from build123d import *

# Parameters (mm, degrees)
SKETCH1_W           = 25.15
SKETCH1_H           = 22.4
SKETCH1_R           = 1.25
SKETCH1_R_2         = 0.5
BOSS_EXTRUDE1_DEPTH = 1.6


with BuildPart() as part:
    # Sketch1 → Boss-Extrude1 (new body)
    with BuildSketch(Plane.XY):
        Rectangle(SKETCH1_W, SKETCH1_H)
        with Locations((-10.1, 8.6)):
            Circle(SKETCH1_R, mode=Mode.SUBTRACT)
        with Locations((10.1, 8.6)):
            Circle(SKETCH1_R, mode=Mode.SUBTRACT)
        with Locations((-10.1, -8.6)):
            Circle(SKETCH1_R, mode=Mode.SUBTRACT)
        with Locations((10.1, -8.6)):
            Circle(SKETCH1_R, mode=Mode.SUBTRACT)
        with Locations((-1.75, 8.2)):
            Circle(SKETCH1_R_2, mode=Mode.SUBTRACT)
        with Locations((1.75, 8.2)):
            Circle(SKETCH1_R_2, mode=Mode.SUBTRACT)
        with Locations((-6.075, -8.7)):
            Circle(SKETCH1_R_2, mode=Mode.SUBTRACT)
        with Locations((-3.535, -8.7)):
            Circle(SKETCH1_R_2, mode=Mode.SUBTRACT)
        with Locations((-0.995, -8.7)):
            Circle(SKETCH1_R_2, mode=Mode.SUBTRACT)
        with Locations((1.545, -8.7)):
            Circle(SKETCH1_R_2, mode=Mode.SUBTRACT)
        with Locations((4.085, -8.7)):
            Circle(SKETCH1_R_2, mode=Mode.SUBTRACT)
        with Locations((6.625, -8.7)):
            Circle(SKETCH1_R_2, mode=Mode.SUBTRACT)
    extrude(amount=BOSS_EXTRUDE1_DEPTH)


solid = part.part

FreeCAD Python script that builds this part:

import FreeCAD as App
import Part
import Sketcher

V = App.Vector

doc = App.newDocument("Part")
params = doc.addObject("Spreadsheet::Sheet", "Params")
for row, (alias, value) in enumerate([
    ("sketch1_diameter", "1 mm"),
    ("sketch1_diameter2", "2.5 mm"),
    ("sketch1_height", "22.4 mm"),
    ("sketch1_width", "25.15 mm"),
    ("pad1_length", "1.6 mm"),
], start=1):
    params.set(f"A{row}", alias)
    params.set(f"B{row}", "=" + value)
    params.setAlias(f"B{row}", alias)

body = doc.addObject("PartDesign::Body", "Body")

# Sketch on XY plane
sketch1 = doc.addObject("Sketcher::SketchObject", "Sketch")
body.addObject(sketch1)
sketch1.AttachmentSupport = (doc.XY_Plane, [""])
sketch1.MapMode = "FlatFace"
sketch1.addGeometry([
    Part.LineSegment(V(-12.6, 11.2, 0), V(-12.6, -11.2, 0)),  # 0
    Part.LineSegment(V(-12.6, -11.2, 0), V(12.6, -11.2, 0)),  # 1
    Part.LineSegment(V(12.6, -11.2, 0), V(12.6, 11.2, 0)),  # 2
    Part.LineSegment(V(12.6, 11.2, 0), V(-12.6, 11.2, 0)),  # 3
    Part.Circle(V(-10.1, -8.6, 0), V(0, 0, 1), 1.2),  # 4
    Part.Circle(V(-6.1, -8.7, 0), V(0, 0, 1), 0.5),  # 5
    Part.Circle(V(-3.5, -8.7, 0), V(0, 0, 1), 0.5),  # 6
    Part.Circle(V(-1, -8.7, 0), V(0, 0, 1), 0.5),  # 7
    Part.Circle(V(1.5, -8.7, 0), V(0, 0, 1), 0.5),  # 8
    Part.Circle(V(4.1, -8.7, 0), V(0, 0, 1), 0.5),  # 9
    Part.Circle(V(6.6, -8.7, 0), V(0, 0, 1), 0.5),  # 10
    Part.Circle(V(10.1, -8.6, 0), V(0, 0, 1), 1.2),  # 11
    Part.Circle(V(-10.1, 8.6, 0), V(0, 0, 1), 1.2),  # 12
    Part.Circle(V(-1.8, 8.2, 0), V(0, 0, 1), 0.5),  # 13
    Part.Circle(V(1.8, 8.2, 0), V(0, 0, 1), 0.5),  # 14
    Part.Circle(V(10.1, 8.6, 0), V(0, 0, 1), 1.2),  # 15
], False)
sketch1.addConstraint([
    Sketcher.Constraint("Coincident", 0, 2, 1, 1),
    Sketcher.Constraint("Coincident", 1, 2, 2, 1),
    Sketcher.Constraint("Coincident", 2, 2, 3, 1),
    Sketcher.Constraint("Coincident", 3, 2, 0, 1),
    Sketcher.Constraint("Vertical", 0),
    Sketcher.Constraint("Horizontal", 1),
    Sketcher.Constraint("Vertical", 2),
    Sketcher.Constraint("Horizontal", 3),
    Sketcher.Constraint("Equal", 5, 6),
    Sketcher.Constraint("Equal", 6, 7),
    Sketcher.Constraint("Equal", 7, 8),
    Sketcher.Constraint("Equal", 8, 9),
    Sketcher.Constraint("Equal", 9, 10),
    Sketcher.Constraint("Equal", 4, 11),
    Sketcher.Constraint("Equal", 11, 12),
    Sketcher.Constraint("Equal", 10, 13),
    Sketcher.Constraint("Equal", 13, 14),
    Sketcher.Constraint("Equal", 12, 15),
    Sketcher.Constraint("Symmetric", 11, 3, 12, 3, -1, 1),
    Sketcher.Constraint("Symmetric", 4, 3, 15, 3, -1, 1),
    Sketcher.Constraint("Symmetric", 0, 2, 2, 2, -1, 1),
    Sketcher.Constraint("Symmetric", 4, 3, 11, 3, -2),
    Sketcher.Constraint("Symmetric", 13, 3, 14, 3, -2),
    Sketcher.Constraint("Horizontal", 5, 3, 6, 3),
    Sketcher.Constraint("Horizontal", 6, 3, 7, 3),
    Sketcher.Constraint("Horizontal", 7, 3, 8, 3),
    Sketcher.Constraint("Horizontal", 8, 3, 9, 3),
    Sketcher.Constraint("Horizontal", 9, 3, 10, 3),
    Sketcher.Constraint("Diameter", 5, 1.0),
    Sketcher.Constraint("Diameter", 4, 2.5),
    Sketcher.Constraint("DistanceY", 0, 2, 0, 1, 22.4),
    Sketcher.Constraint("DistanceY", 14, 3, 2, 2, 3.0),
    Sketcher.Constraint("DistanceX", 1, 1, 1, 2, 25.15),
    Sketcher.Constraint("DistanceX", 4, 3, -1, 1, 10.1),
    Sketcher.Constraint("DistanceY", 4, 3, -1, 1, 8.6),
    Sketcher.Constraint("DistanceY", 5, 3, -1, 1, 8.7),
    Sketcher.Constraint("DistanceX", 5, 3, 10, 3, 12.7),
    Sketcher.Constraint("DistanceX", 13, 3, 14, 3, 3.5),
    Sketcher.Constraint("DistanceX", 0, 2, 5, 3, 6.5),
    Sketcher.Constraint("DistanceX", 5, 3, 6, 3, 2.54),
    Sketcher.Constraint("DistanceX", 6, 3, 7, 3, 2.54),
    Sketcher.Constraint("DistanceX", 7, 3, 8, 3, 2.54),
    Sketcher.Constraint("DistanceX", 8, 3, 9, 3, 2.54),
])
sketch1.setExpression("Constraints[28]", "Params.sketch1_diameter")
sketch1.setExpression("Constraints[29]", "Params.sketch1_diameter2")
sketch1.setExpression("Constraints[30]", "Params.sketch1_height")
sketch1.setExpression("Constraints[32]", "Params.sketch1_width")
pad1 = doc.addObject("PartDesign::Pad", "Pad")
body.addObject(pad1)
pad1.Profile = sketch1
pad1.setExpression("Length", "Params.pad1_length")

doc.recompute()
